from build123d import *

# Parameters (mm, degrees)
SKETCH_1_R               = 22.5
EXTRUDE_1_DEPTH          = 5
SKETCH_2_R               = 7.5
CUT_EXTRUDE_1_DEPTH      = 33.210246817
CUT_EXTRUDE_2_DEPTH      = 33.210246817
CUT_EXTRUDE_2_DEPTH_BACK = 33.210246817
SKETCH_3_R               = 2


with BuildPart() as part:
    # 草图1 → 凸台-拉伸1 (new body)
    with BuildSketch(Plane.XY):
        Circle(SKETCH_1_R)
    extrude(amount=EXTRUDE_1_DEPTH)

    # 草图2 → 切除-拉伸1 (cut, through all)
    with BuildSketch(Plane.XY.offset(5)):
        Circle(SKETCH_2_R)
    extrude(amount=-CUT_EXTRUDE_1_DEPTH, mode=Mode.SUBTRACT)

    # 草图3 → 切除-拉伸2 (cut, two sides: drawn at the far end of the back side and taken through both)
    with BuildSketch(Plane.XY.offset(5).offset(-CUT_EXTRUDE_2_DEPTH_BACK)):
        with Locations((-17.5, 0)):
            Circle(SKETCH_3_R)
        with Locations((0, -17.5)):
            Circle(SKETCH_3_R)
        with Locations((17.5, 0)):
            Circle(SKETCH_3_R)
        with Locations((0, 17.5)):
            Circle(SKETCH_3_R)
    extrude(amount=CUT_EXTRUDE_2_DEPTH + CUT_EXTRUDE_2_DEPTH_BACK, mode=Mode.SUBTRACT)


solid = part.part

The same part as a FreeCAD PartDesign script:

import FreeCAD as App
import Part
import Sketcher

V = App.Vector
Q = App.Units.Quantity

doc = App.newDocument("Part")
body = doc.addObject("PartDesign::Body", "Body")

# Sketch on XY plane
sketch1 = body.newObject("Sketcher::SketchObject", "Sketch")
sketch1.AttachmentSupport = (doc.getObject("XY_Plane"), [""])
sketch1.MapMode = "FlatFace"
sketch1.addGeometry(Part.Circle(V(0, 0, 0), V(0, 0, 1), 22.5), False)
sketch1.addConstraint([
    Sketcher.Constraint("Coincident", 0, 3, -1, 1),
    Sketcher.Constraint("Diameter", 0, Q("45 mm")),
])
pad1 = body.newObject("PartDesign::Pad", "Pad")
pad1.Profile = sketch1
pad1.Length = 5

# Sketch on XY plane
sketch2 = body.newObject("Sketcher::SketchObject", "Sketch001")
sketch2.AttachmentSupport = (doc.getObject("XY_Plane"), [""])
sketch2.MapMode = "FlatFace"
sketch2.AttachmentOffset = App.Placement(V(0, 0, 5), App.Rotation())
sketch2.addGeometry(Part.Circle(V(0, 0, 0), V(0, 0, 1), 7.5), False)
sketch2.addConstraint([
    Sketcher.Constraint("Coincident", 0, 3, -1, 1),
    Sketcher.Constraint("Diameter", 0, Q("15 mm")),
])
pocket1 = body.newObject("PartDesign::Pocket", "Pocket")
pocket1.Profile = sketch2
pocket1.Type = "ThroughAll"

# Sketch on XY plane
sketch3 = body.newObject("Sketcher::SketchObject", "Sketch002")
sketch3.AttachmentSupport = (doc.getObject("XY_Plane"), [""])
sketch3.MapMode = "FlatFace"
sketch3.AttachmentOffset = App.Placement(V(0, 0, 5), App.Rotation())
sketch3.addGeometry([
    Part.Circle(V(-17.5, 0, 0), V(0, 0, 1), 2),
    Part.Circle(V(0, -17.5, 0), V(0, 0, 1), 2),
    Part.Circle(V(17.5, 0, 0), V(0, 0, 1), 2),
    Part.Circle(V(0, 17.5, 0), V(0, 0, 1), 2),
], False)
sketch3.addConstraint([
    Sketcher.Constraint("Equal", 0, 1),
    Sketcher.Constraint("Equal", 1, 2),
    Sketcher.Constraint("Equal", 2, 3),
    Sketcher.Constraint("Symmetric", 0, 3, 2, 3, -1, 1),
    Sketcher.Constraint("Symmetric", 1, 3, 3, 3, -1, 1),
    Sketcher.Constraint("PointOnObject", 0, 3, -1),
    Sketcher.Constraint("PointOnObject", 1, 3, -2),
    Sketcher.Constraint("Diameter", 0, Q("4 mm")),
    Sketcher.Constraint("DistanceX", 0, 3, 2, 3, Q("35 mm")),
    Sketcher.Constraint("DistanceY", 1, 3, 3, 3, Q("35 mm")),
])
pocket2 = body.newObject("PartDesign::Pocket", "Pocket001")
pocket2.Profile = sketch3
pocket2.Type = "ThroughAll"
pocket2.Midplane = True

doc.recompute()
